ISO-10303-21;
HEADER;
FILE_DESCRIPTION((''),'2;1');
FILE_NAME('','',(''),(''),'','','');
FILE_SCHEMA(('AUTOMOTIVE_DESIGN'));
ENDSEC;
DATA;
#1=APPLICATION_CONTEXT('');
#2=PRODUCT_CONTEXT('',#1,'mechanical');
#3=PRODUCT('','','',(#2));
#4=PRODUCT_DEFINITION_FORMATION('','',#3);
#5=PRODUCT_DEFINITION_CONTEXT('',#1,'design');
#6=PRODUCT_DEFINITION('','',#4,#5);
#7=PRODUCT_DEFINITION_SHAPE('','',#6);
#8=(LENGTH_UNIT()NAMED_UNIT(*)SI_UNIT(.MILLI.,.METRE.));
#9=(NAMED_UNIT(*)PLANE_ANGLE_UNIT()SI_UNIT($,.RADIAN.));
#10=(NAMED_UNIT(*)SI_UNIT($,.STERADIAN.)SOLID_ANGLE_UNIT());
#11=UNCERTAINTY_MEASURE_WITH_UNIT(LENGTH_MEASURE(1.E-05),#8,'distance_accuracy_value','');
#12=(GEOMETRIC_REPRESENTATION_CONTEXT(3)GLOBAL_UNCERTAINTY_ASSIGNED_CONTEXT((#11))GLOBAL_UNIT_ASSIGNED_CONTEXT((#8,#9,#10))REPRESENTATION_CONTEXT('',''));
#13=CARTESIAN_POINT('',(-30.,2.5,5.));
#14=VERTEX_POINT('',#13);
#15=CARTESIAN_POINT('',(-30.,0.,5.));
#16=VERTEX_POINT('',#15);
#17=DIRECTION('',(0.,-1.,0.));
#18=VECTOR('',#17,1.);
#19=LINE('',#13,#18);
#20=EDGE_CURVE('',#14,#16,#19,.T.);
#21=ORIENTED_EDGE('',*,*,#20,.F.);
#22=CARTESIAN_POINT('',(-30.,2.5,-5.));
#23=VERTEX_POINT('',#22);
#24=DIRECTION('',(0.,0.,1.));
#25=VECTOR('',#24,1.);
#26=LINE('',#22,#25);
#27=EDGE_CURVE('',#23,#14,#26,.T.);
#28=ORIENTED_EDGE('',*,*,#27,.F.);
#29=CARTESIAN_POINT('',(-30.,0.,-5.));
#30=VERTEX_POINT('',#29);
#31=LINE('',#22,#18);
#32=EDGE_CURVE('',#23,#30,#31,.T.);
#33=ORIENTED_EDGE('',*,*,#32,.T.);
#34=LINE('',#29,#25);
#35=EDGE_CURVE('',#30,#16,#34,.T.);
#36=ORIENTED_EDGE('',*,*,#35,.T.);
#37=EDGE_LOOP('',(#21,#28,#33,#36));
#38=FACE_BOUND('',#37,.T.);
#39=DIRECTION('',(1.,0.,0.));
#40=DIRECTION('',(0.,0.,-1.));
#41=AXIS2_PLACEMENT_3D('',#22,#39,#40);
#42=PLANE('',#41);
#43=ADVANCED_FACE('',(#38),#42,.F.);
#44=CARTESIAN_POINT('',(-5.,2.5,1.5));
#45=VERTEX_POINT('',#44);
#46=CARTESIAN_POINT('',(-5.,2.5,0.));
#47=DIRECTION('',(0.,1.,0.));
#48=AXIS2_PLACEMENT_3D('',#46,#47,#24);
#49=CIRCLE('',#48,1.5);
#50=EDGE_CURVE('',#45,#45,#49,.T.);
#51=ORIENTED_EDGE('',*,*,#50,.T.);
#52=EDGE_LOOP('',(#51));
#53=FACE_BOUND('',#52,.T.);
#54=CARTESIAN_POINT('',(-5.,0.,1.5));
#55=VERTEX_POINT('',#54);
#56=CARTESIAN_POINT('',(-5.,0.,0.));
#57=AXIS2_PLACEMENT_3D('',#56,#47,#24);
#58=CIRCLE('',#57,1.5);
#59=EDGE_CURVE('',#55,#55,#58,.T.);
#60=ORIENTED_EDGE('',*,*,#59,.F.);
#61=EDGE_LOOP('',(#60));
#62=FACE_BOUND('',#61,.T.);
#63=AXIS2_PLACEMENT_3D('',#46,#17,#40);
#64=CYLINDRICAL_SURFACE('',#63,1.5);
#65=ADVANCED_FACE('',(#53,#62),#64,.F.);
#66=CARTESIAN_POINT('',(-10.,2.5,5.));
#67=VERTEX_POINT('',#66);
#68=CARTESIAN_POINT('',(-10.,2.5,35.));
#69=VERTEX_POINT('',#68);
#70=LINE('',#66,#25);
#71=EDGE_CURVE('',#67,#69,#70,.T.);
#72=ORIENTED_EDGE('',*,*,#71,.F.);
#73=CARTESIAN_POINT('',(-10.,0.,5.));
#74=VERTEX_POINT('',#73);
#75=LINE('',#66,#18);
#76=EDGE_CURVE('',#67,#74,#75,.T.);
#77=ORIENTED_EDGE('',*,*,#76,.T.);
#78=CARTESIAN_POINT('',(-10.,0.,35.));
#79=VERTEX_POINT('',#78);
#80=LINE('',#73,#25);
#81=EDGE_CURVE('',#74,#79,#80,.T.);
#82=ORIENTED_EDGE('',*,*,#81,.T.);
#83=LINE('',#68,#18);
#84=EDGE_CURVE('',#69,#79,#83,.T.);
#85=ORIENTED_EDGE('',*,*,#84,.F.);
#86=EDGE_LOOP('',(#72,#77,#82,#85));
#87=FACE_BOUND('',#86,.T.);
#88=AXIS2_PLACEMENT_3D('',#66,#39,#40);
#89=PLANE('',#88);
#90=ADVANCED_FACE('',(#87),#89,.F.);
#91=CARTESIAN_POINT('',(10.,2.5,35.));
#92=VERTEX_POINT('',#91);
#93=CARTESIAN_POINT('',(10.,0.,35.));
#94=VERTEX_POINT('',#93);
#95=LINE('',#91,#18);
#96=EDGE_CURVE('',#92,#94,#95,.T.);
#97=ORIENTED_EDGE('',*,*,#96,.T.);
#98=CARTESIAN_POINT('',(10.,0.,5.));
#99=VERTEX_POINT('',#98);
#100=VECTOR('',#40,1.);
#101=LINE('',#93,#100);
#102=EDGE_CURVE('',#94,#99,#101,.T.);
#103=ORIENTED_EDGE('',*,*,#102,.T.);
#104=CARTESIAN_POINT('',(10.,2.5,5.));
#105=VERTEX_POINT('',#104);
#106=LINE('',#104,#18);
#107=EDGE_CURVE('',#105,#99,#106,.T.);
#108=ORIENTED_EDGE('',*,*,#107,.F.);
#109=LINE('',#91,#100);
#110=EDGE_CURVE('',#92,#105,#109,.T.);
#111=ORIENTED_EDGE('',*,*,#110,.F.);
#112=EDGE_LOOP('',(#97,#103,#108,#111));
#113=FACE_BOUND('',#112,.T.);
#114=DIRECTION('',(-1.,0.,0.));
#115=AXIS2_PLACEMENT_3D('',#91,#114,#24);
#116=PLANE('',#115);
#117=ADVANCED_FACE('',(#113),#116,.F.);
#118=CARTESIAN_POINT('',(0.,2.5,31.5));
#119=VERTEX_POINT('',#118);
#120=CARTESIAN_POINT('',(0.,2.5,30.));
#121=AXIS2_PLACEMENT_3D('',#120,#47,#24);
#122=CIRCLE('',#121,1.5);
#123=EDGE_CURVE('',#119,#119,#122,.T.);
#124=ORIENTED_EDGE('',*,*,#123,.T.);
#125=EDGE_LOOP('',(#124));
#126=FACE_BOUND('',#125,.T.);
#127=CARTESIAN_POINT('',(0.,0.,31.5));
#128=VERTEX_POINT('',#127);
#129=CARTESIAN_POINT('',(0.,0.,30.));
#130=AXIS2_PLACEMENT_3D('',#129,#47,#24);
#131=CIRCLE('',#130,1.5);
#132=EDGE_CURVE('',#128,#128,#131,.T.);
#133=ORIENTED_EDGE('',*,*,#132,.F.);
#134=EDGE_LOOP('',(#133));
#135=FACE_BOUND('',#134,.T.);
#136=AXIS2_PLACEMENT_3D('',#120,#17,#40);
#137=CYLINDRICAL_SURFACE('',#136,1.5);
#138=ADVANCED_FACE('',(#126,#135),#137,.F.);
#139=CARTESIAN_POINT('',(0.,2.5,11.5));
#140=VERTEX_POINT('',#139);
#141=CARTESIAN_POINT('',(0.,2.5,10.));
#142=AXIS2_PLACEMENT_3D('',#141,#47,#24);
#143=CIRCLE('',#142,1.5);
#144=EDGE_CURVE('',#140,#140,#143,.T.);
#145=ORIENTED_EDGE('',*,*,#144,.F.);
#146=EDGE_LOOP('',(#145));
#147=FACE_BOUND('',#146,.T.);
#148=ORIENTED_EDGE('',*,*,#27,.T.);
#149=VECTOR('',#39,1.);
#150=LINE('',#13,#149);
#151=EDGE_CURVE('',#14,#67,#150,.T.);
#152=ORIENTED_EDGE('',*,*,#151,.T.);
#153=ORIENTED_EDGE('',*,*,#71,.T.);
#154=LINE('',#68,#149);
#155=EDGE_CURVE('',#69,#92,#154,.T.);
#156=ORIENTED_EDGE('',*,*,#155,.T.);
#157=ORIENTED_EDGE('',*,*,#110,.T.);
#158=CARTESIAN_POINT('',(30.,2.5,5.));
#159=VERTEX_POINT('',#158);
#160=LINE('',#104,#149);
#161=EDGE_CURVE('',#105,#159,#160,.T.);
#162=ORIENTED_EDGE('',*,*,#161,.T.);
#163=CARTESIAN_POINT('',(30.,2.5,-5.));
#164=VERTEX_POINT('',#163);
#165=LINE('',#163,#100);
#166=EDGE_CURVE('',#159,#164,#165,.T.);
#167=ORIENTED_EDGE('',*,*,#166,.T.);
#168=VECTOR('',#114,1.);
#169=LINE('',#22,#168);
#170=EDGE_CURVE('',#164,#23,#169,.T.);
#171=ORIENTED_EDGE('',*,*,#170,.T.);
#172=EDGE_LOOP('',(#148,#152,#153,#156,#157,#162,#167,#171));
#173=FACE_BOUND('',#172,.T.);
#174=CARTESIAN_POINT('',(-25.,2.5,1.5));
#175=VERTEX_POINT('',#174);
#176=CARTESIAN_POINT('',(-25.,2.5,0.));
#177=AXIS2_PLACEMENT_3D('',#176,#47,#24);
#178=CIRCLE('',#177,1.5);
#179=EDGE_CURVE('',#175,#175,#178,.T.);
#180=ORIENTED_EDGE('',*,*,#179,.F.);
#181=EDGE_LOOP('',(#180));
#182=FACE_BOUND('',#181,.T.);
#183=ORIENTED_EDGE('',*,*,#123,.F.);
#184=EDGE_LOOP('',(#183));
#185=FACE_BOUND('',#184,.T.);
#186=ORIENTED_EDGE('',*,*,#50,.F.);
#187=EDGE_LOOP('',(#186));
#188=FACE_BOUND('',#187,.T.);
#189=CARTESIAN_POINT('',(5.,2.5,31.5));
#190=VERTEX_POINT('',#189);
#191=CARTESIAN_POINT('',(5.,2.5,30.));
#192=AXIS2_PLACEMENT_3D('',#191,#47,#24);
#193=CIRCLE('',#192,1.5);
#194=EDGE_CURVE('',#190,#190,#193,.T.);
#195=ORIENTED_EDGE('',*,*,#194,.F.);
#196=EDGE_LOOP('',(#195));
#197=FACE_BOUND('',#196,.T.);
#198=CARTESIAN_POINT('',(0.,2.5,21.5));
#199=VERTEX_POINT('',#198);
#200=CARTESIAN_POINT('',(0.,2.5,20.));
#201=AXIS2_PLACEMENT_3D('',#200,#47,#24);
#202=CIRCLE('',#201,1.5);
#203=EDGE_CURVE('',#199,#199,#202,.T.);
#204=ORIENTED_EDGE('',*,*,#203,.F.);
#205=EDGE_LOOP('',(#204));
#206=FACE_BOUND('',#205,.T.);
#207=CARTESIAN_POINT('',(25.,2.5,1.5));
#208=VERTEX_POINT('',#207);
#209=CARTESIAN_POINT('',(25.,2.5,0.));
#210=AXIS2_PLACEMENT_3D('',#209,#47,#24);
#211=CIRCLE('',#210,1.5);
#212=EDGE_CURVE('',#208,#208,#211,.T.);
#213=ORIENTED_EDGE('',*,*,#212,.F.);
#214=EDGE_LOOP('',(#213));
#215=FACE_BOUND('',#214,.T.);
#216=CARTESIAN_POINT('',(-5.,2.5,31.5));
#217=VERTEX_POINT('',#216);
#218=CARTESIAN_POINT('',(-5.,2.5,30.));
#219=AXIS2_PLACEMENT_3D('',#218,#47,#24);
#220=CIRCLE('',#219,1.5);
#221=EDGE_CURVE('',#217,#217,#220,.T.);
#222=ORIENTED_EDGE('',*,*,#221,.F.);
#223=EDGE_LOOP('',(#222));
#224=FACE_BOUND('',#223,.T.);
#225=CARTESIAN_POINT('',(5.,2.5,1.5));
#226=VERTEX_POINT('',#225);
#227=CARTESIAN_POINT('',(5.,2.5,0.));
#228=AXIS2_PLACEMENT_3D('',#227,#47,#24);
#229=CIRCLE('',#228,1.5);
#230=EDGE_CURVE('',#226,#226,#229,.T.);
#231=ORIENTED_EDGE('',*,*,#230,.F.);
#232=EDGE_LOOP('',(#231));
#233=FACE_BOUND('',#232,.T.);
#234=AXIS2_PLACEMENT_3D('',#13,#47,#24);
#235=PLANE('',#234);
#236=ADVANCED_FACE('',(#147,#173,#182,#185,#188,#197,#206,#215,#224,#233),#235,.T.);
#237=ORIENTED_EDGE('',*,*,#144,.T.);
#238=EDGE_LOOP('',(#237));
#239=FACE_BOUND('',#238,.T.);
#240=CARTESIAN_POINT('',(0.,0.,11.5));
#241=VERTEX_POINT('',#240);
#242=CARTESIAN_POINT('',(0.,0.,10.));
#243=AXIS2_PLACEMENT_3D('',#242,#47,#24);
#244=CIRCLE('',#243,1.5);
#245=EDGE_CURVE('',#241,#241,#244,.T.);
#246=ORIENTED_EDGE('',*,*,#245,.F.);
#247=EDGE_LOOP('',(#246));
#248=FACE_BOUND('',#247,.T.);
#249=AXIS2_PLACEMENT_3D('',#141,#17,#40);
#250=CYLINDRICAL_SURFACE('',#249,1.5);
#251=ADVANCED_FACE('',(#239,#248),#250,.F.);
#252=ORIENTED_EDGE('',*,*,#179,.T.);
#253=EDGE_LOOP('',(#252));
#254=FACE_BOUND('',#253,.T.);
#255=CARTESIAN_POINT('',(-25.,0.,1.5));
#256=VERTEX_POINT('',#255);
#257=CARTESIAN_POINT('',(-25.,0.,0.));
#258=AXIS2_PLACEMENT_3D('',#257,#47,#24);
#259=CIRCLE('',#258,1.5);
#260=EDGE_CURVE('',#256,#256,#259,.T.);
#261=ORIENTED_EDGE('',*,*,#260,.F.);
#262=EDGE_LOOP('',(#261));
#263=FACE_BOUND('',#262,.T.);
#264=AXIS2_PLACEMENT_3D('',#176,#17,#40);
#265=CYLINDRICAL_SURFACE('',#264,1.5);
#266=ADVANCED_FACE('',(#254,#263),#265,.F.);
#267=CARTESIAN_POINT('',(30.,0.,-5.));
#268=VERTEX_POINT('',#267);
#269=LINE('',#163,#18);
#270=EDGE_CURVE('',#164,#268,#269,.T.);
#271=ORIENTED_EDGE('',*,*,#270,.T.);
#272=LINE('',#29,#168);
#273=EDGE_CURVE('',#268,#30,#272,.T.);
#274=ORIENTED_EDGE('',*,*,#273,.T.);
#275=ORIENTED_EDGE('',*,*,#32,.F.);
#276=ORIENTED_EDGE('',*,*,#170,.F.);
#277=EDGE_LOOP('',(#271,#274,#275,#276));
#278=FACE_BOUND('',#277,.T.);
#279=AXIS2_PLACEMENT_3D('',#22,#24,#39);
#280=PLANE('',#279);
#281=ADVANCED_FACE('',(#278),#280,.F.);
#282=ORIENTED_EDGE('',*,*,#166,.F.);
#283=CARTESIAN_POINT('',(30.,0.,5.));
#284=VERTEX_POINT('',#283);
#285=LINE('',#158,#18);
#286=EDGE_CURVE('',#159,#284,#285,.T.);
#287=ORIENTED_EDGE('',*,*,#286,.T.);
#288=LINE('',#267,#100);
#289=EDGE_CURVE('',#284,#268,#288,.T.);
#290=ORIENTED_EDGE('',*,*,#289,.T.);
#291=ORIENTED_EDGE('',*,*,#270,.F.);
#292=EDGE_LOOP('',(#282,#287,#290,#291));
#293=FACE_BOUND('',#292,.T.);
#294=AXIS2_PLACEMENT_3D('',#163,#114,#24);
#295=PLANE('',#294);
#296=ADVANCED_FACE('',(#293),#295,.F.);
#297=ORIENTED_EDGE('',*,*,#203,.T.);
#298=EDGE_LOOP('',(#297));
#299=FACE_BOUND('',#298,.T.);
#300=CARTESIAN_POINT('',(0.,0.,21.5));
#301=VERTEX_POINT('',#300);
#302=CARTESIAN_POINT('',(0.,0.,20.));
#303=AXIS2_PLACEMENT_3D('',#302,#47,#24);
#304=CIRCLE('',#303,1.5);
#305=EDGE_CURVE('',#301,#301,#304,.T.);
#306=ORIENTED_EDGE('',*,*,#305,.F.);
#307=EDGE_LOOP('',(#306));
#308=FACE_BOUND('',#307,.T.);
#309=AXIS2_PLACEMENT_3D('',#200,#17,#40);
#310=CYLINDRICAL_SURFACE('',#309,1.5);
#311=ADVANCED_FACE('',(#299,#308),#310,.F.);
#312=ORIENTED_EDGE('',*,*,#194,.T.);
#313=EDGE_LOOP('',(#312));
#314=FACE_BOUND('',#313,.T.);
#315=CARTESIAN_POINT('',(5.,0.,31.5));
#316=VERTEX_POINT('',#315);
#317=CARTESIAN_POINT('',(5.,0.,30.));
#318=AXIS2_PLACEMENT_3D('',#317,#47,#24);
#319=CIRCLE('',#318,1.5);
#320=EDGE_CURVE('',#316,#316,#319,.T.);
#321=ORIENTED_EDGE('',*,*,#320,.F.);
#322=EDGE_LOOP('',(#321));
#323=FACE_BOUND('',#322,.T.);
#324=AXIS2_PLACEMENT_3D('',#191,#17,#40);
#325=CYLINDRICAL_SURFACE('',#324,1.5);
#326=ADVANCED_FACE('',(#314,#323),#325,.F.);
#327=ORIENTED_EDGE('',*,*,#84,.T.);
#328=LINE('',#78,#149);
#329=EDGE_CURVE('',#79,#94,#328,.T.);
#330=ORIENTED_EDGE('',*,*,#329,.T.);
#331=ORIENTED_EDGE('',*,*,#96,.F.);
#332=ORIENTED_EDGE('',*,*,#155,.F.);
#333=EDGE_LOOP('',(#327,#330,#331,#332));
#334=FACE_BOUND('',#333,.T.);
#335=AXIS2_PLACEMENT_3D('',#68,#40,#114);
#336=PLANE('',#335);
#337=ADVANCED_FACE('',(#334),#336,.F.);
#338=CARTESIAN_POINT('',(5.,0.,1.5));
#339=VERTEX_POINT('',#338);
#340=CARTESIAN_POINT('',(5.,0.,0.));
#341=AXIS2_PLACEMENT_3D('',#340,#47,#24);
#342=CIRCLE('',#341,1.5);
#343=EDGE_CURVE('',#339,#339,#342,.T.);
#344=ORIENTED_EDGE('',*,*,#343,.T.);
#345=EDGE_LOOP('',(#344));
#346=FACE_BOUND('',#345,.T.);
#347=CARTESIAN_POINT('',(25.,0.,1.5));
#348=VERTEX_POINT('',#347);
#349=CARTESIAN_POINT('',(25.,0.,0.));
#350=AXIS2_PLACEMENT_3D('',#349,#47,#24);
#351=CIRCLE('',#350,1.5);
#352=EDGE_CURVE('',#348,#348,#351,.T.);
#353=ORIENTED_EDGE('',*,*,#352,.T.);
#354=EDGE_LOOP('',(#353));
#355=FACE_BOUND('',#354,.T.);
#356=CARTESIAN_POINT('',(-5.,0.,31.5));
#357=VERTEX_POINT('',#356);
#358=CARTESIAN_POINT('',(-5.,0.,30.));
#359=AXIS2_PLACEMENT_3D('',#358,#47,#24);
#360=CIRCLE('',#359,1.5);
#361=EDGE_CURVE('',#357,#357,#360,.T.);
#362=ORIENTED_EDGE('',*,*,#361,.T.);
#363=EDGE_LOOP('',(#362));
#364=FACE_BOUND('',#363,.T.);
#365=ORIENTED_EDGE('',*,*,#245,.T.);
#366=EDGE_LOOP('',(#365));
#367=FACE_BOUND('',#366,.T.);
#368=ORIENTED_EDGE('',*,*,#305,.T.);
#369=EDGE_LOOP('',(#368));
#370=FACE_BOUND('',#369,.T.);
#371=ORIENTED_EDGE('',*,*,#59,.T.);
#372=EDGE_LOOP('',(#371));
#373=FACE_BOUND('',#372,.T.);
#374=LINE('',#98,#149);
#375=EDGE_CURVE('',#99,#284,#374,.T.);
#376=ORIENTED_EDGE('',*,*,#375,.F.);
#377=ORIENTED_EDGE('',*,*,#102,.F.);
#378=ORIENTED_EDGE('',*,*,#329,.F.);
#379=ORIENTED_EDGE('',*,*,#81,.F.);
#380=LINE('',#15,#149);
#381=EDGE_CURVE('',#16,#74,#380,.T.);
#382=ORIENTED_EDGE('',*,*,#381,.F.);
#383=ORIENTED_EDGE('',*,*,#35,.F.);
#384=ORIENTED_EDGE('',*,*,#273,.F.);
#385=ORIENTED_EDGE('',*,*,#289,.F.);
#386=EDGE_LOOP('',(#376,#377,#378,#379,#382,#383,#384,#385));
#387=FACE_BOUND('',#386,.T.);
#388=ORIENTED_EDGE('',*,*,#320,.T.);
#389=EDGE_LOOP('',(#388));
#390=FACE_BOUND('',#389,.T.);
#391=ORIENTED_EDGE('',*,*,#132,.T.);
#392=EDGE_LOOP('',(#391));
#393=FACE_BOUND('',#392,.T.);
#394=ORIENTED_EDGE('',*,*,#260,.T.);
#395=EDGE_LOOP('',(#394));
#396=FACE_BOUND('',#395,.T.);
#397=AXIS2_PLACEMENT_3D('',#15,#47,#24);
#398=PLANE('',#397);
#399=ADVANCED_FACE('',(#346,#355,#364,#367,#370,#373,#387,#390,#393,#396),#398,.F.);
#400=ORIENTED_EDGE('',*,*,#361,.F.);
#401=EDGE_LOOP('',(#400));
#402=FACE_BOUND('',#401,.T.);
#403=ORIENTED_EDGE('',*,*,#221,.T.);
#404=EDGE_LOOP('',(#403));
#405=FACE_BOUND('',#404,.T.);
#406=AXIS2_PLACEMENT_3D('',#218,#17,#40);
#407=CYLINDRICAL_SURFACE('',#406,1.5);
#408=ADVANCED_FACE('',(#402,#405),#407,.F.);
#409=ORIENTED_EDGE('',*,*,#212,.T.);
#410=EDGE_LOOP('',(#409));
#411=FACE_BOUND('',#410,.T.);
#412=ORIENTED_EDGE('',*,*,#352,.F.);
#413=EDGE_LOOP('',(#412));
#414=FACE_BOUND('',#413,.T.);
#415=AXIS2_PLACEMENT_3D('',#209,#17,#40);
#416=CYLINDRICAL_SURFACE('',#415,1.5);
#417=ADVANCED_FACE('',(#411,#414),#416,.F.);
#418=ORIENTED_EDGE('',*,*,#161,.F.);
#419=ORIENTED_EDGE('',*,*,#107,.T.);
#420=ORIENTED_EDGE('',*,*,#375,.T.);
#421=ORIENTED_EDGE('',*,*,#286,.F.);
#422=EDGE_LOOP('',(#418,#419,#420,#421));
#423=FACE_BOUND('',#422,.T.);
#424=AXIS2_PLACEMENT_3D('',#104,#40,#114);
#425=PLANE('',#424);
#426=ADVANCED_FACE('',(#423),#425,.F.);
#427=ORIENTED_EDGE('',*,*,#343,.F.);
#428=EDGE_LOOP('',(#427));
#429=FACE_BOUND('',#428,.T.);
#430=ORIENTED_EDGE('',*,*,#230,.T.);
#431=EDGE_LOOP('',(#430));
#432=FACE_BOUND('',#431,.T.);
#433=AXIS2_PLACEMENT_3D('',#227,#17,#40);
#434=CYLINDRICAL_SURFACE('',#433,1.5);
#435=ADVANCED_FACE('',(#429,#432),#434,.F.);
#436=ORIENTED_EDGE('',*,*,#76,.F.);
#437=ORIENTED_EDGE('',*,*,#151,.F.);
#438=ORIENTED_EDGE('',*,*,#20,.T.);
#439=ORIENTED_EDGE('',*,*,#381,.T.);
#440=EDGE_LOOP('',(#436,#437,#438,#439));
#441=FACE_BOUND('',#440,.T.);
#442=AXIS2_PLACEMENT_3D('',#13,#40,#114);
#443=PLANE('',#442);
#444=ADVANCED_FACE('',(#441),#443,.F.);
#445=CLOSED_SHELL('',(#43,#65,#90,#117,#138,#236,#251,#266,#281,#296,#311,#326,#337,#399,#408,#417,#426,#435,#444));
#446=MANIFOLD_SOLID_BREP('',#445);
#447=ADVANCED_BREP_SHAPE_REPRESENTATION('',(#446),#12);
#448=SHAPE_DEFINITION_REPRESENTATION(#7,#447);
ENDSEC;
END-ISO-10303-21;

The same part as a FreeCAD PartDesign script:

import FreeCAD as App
import Part
import Sketcher
from FreeCAD import Vector
Q = App.Units.Quantity


def add_polygon(sketch, points):
    """Adds a closed chain of lines whose ends are joined by coincident constraints."""
    first, n = sketch.GeometryCount, len(points)
    for a, b in zip(points, points[1:] + points[:1]):
        sketch.addGeometry(Part.LineSegment(App.Vector(*a, 0), App.Vector(*b, 0)), False)
    for i in range(n):
        sketch.addConstraint(Sketcher.Constraint("Coincident", first + i, 2, first + (i + 1) % n, 1))

doc = App.newDocument("Part")
body = doc.addObject("PartDesign::Body", "Body")

# Sketch on XZ plane
sketch1 = body.newObject("Sketcher::SketchObject", "Sketch")
sketch1.AttachmentSupport = (doc.getObject("XZ_Plane"), [""])
sketch1.MapMode = "FlatFace"
add_polygon(sketch1, [(-30, 5), (-10, 5), (-10, 35), (10, 35), (10, 5), (30, 5), (30, -5), (-30, -5)])  # lines 0-7
sketch1.addGeometry(Part.Circle(Vector(-5, 30, 0), Vector(0, 0, 1), 1.5), False)  # 8
sketch1.addGeometry(Part.Circle(Vector(0, 30, 0), Vector(0, 0, 1), 1.5), False)  # 9
sketch1.addGeometry(Part.Circle(Vector(5, 30, 0), Vector(0, 0, 1), 1.5), False)  # 10
sketch1.addGeometry(Part.Circle(Vector(0, 20, 0), Vector(0, 0, 1), 1.5), False)  # 11
sketch1.addGeometry(Part.Circle(Vector(-25, 0, 0), Vector(0, 0, 1), 1.5), False)  # 12
sketch1.addGeometry(Part.Circle(Vector(-5, 0, 0), Vector(0, 0, 1), 1.5), False)  # 13
sketch1.addGeometry(Part.Circle(Vector(0, 10, 0), Vector(0, 0, 1), 1.5), False)  # 14
sketch1.addGeometry(Part.Circle(Vector(5, 0, 0), Vector(0, 0, 1), 1.5), False)  # 15
sketch1.addGeometry(Part.Circle(Vector(25, 0, 0), Vector(0, 0, 1), 1.5), False)  # 16
sketch1.addConstraint([
    Sketcher.Constraint("Horizontal", 0),
    Sketcher.Constraint("Vertical", 1),
    Sketcher.Constraint("Horizontal", 2),
    Sketcher.Constraint("Vertical", 3),
    Sketcher.Constraint("Horizontal", 4),
    Sketcher.Constraint("Vertical", 5),
    Sketcher.Constraint("Horizontal", 6),
    Sketcher.Constraint("Vertical", 7),
    Sketcher.Constraint("Equal", 8, 9),
    Sketcher.Constraint("Equal", 9, 10),
    Sketcher.Constraint("Equal", 10, 11),
    Sketcher.Constraint("Equal", 11, 12),
    Sketcher.Constraint("Equal", 12, 13),
    Sketcher.Constraint("Equal", 13, 14),
    Sketcher.Constraint("Equal", 14, 15),
    Sketcher.Constraint("Equal", 15, 16),
    Sketcher.Constraint("Symmetric", 13, 3, 15, 3, -1, 1),
    Sketcher.Constraint("Symmetric", 12, 3, 16, 3, -1, 1),
    Sketcher.Constraint("Symmetric", 4, 2, 6, 2, -1, 1),
    Sketcher.Constraint("Symmetric", 8, 3, 10, 3, -2),
    Sketcher.Constraint("Symmetric", 0, 2, 3, 2, -2),
    Sketcher.Constraint("PointOnObject", 9, 3, -2),
    Sketcher.Constraint("PointOnObject", 11, 3, -2),
    Sketcher.Constraint("PointOnObject", 12, 3, -1),
    Sketcher.Constraint("PointOnObject", 13, 3, -1),
    Sketcher.Constraint("PointOnObject", 14, 3, -2),
    Sketcher.Constraint("Horizontal", 8, 3, 9, 3),
    Sketcher.Constraint("Vertical", 8, 3, 13, 3),
    Sketcher.Constraint("Equal", 0, 2),
    Sketcher.Constraint("Diameter", 8, Q("3 mm")),
    Sketcher.Constraint("DistanceX", 0, 1, 0, 2, Q("20 mm")),
    Sketcher.Constraint("DistanceY", 1, 1, 1, 2, Q("30 mm")),
    Sketcher.Constraint("DistanceY", 5, 2, 5, 1, Q("10 mm")),
    Sketcher.Constraint("DistanceX", 8, 3, -1, 1, Q("5 mm")),
    Sketcher.Constraint("DistanceY", -1, 1, 8, 3, Q("30 mm")),
    Sketcher.Constraint("DistanceY", -1, 1, 11, 3, Q("20 mm")),
    Sketcher.Constraint("DistanceX", 12, 3, -1, 1, Q("25 mm")),
    Sketcher.Constraint("DistanceY", -1, 1, 14, 3, Q("10 mm")),
])
pad1 = body.newObject("PartDesign::Pad", "Pad")
pad1.Profile = sketch1
pad1.Length = 2.5
pad1.Reversed = True

doc.recompute()
